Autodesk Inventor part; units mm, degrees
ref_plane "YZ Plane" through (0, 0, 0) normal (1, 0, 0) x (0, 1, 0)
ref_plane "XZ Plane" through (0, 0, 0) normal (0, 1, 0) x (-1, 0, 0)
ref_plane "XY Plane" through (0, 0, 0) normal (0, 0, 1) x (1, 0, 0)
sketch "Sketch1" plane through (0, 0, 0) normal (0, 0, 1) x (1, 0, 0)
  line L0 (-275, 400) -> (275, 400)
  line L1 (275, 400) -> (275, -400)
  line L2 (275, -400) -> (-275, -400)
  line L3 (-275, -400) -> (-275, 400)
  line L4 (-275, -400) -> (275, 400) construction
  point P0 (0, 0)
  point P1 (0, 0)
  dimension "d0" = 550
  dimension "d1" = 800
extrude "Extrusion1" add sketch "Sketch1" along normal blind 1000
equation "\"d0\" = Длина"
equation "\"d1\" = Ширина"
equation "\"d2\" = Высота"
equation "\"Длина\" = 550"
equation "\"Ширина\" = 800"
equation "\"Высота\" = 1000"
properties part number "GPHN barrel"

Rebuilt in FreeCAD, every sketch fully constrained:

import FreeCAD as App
import Part
import Sketcher

doc = App.newDocument("Part")
body = doc.addObject("PartDesign::Body", "Body")

sketch1 = body.newObject("Sketcher::SketchObject", "Sketch")
sketch1.AttachmentSupport = (doc.getObject("XY_Plane"), [""])
sketch1.MapMode = "FlatFace"
sketch1.addGeometry(Part.LineSegment(App.Vector(275, 400, 0), App.Vector(-275, 400, 0)), False)
sketch1.addGeometry(Part.LineSegment(App.Vector(-275, 400, 0), App.Vector(-275, -400, 0)), False)
sketch1.addGeometry(Part.LineSegment(App.Vector(-275, -400, 0), App.Vector(275, -400, 0)), False)
sketch1.addGeometry(Part.LineSegment(App.Vector(275, -400, 0), App.Vector(275, 400, 0)), False)
sketch1.addConstraint(Sketcher.Constraint("Coincident", 0, 2, 1, 1))
sketch1.addConstraint(Sketcher.Constraint("Coincident", 1, 2, 2, 1))
sketch1.addConstraint(Sketcher.Constraint("Coincident", 2, 2, 3, 1))
sketch1.addConstraint(Sketcher.Constraint("Coincident", 3, 2, 0, 1))
sketch1.addConstraint(Sketcher.Constraint("Horizontal", 0))
sketch1.addConstraint(Sketcher.Constraint("Vertical", 1))
sketch1.addConstraint(Sketcher.Constraint("Horizontal", 2))
sketch1.addConstraint(Sketcher.Constraint("Vertical", 3))
sketch1.addConstraint(Sketcher.Constraint("Symmetric", 0, 2, 2, 2, -1, 1))
sketch1.addConstraint(Sketcher.Constraint("DistanceX", 0, 2, 0, 1, 550.0))
sketch1.addConstraint(Sketcher.Constraint("DistanceY", 1, 2, 1, 1, 800.0))
pad1 = body.newObject("PartDesign::Pad", "Pad")
pad1.Profile = sketch1
pad1.Length = 1000

doc.recompute()
